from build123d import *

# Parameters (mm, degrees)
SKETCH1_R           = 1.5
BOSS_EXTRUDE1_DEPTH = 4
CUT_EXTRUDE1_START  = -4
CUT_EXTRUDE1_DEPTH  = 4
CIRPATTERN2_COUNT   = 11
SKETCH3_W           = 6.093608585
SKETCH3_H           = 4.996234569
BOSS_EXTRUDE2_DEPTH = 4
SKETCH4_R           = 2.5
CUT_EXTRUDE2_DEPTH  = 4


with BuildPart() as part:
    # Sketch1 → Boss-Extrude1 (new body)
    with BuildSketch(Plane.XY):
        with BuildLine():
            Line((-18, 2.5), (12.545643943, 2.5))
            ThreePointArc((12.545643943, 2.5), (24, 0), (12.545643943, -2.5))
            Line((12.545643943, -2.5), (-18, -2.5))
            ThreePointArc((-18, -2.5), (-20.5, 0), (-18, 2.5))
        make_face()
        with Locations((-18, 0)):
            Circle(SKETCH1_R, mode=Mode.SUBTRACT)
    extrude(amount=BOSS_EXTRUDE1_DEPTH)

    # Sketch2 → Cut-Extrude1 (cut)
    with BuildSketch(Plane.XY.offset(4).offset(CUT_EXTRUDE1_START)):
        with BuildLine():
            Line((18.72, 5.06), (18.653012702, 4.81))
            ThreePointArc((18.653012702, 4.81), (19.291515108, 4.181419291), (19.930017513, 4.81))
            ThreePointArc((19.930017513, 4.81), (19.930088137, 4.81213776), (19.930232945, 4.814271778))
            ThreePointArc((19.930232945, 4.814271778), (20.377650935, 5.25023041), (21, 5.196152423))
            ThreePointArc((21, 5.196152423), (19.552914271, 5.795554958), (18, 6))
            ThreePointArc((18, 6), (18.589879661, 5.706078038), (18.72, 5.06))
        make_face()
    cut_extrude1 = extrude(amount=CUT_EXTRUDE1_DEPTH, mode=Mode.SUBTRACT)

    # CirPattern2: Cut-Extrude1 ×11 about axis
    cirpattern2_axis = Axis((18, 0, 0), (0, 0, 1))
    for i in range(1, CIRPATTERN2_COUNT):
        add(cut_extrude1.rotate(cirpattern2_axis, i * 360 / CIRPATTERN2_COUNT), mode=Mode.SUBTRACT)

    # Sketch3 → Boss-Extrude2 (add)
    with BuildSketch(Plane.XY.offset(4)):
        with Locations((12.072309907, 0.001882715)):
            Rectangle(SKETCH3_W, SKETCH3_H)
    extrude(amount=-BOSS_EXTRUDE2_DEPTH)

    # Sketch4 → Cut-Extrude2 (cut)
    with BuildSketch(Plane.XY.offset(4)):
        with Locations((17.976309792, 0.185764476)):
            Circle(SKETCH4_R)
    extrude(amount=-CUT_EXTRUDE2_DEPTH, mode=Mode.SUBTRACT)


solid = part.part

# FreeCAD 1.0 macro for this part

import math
import FreeCAD as App
import Part
import Sketcher

V = App.Vector
Q = App.Units.Quantity


def add_polygon(sketch, points):
    """Adds a closed chain of lines whose ends are joined by coincident constraints."""
    first, n = sketch.GeometryCount, len(points)
    for a, b in zip(points, points[1:] + points[:1]):
        sketch.addGeometry(Part.LineSegment(App.Vector(*a, 0), App.Vector(*b, 0)), False)
    for i in range(n):
        sketch.addConstraint(Sketcher.Constraint("Coincident", first + i, 2, first + (i + 1) % n, 1))

doc = App.newDocument("Part")
body = doc.addObject("PartDesign::Body", "Body")

# Sketch on XY plane
sketch1 = body.newObject("Sketcher::SketchObject", "Sketch")
sketch1.AttachmentSupport = (doc.getObject("XY_Plane"), [""])
sketch1.MapMode = "FlatFace"
sketch1.addGeometry([
    Part.LineSegment(V(12.545644, 2.5, 0), V(-18, 2.5, 0)),  # 0
    Part.ArcOfCircle(Part.Circle(V(-18, 0, 0), V(0, 0, 1), 2.5), math.radians(90), math.radians(270)),  # 1
    Part.LineSegment(V(-18, -2.5, 0), V(12.545644, -2.5, 0)),  # 2
    Part.ArcOfCircle(Part.Circle(V(18, 0, 0), V(0, 0, 1), 6), math.radians(-155.375682), math.radians(155.375682)),  # 3
    Part.Circle(V(-18, 0, 0), V(0, 0, 1), 1.5),  # 4
], False)
sketch1.addConstraint([
    Sketcher.Constraint("Tangent", 0, 2, 1, 1),
    Sketcher.Constraint("Tangent", 1, 2, 2, 1),
    Sketcher.Constraint("Coincident", 2, 2, 3, 1),
    Sketcher.Constraint("Coincident", 3, 2, 0, 1),
    Sketcher.Constraint("Horizontal", 0),
    Sketcher.Constraint("Horizontal", 2),
    Sketcher.Constraint("Coincident", 4, 3, 1, 3),
    Sketcher.Constraint("Symmetric", 1, 3, 3, 3, -1, 1),
    Sketcher.Constraint("PointOnObject", 1, 3, -1),
    Sketcher.Constraint("Diameter", 4, 3.0),
    Sketcher.Constraint("Radius", 3, 6.0),
    Sketcher.Constraint("Radius", 1, 2.5),
    Sketcher.Constraint("DistanceX", 1, 3, -1, 1, 18.0),
])
pad1 = body.newObject("PartDesign::Pad", "Pad")
pad1.Profile = sketch1
pad1.Length = 4

# Sketch on XY plane
sketch2 = body.newObject("Sketcher::SketchObject", "Sketch001")
sketch2.AttachmentSupport = (doc.getObject("XY_Plane"), [""])
sketch2.MapMode = "FlatFace"
sketch2.addGeometry([
    Part.LineSegment(V(18.72, 5.06, 0), V(18.653013, 4.81, 0)),  # 0
    Part.ArcOfCircle(Part.Circle(V(19.291515, 4.82, 0), V(0, 0, 1), 0.638581), math.radians(-179.102727), math.radians(-0.897273)),  # 1
    Part.ArcOfCircle(Part.Circle(V(19.991603, 4.809035, 0), V(0, 0, 1), 0.061593), math.radians(175.12313), math.radians(179.102742)),  # 2
    Part.ArcOfCircle(Part.Circle(V(20.629798, 4.543887, 0), V(0, 0, 1), 0.75), math.radians(60.422384), math.radians(158.868256)),  # 3
    Part.ArcOfCircle(Part.Circle(V(18, 0, 0), V(0, 0, 1), 6), math.radians(60), math.radians(90)),  # 4
    Part.ArcOfCircle(Part.Circle(V(17.994471, 5.25002, 0), V(0, 0, 1), 0.75), math.radians(-14.676459), math.radians(89.577616)),  # 5
], False)
sketch2.addConstraint([
    Sketcher.Constraint("Coincident", 0, 2, 1, 1),
    Sketcher.Constraint("Tangent", 1, 2, 2, 2),
    Sketcher.Constraint("Coincident", 2, 1, 3, 2),
    Sketcher.Constraint("Coincident", 3, 1, 4, 1),
    Sketcher.Constraint("Coincident", 4, 2, 5, 2),
    Sketcher.Constraint("Coincident", 5, 1, 0, 1),
    Sketcher.Constraint("Equal", 3, 5),
    Sketcher.Constraint("PointOnObject", 4, 3, -1),
    Sketcher.Constraint("Horizontal", 0, 2, 1, 2),
    Sketcher.Constraint("Radius", 4, 6.0),
    Sketcher.Constraint("Angle", 0, Q("-105 deg")),
    Sketcher.Constraint("Radius", 3, 0.75),
    Sketcher.Constraint("DistanceX", -1, 1, 4, 3, 18.0),
    Sketcher.Constraint("DistanceX", -1, 1, 3, 1, 21.0),
    Sketcher.Constraint("DistanceX", -1, 1, 4, 2, 18.0),
    Sketcher.Constraint("DistanceY", -1, 1, 1, 3, 4.82),
    Sketcher.Constraint("DistanceY", -1, 1, 0, 2, 4.81),
    Sketcher.Constraint("DistanceX", -1, 1, 5, 1, 18.72),
    Sketcher.Constraint("DistanceY", -1, 1, 5, 1, 5.06),
    Sketcher.Constraint("Radius", 1, 0.638581),
    Sketcher.Constraint("Radius", 2, 0.061593),
    Sketcher.Constraint("DistanceX", -1, 1, 3, 3, 20.629798),
])
pocket1 = body.newObject("PartDesign::Pocket", "Pocket")
pocket1.Profile = sketch2
pocket1.Length = 4
pocket1.Reversed = True
doc.recompute()

datumline = body.newObject("PartDesign::Line", "DatumLine")
datumline.Placement = App.Placement(V(18, 0, 0), App.Rotation(V(0, 0, 1), V(0, 0, 1)))
polarpattern = body.newObject("PartDesign::PolarPattern", "PolarPattern")
polarpattern.Originals = [pocket1]
polarpattern.Axis = (datumline, [""])
polarpattern.Angle = 360
polarpattern.Occurrences = 11
body.Tip = polarpattern

# Sketch on XY plane
sketch3 = body.newObject("Sketcher::SketchObject", "Sketch002")
sketch3.AttachmentSupport = (doc.getObject("XY_Plane"), [""])
sketch3.MapMode = "FlatFace"
sketch3.AttachmentOffset = App.Placement(V(0, 0, 4), App.Rotation())
add_polygon(sketch3, [(9.025506, 2.5), (9.025506, -2.496235), (15.119114, -2.496235), (15.119114, 2.5)])  # lines 0-3
sketch3.addConstraint([
    Sketcher.Constraint("Vertical", 0),
    Sketcher.Constraint("Horizontal", 1),
    Sketcher.Constraint("Vertical", 2),
    Sketcher.Constraint("Horizontal", 3),
    Sketcher.Constraint("DistanceY", -1, 1, 2, 2, 2.5),
    Sketcher.Constraint("DistanceX", 1, 1, 1, 2, 6.093609),
    Sketcher.Constraint("DistanceY", 0, 2, 0, 1, 4.996235),
    Sketcher.Constraint("DistanceX", -1, 1, 0, 2, 9.025506),
])
pad2 = body.newObject("PartDesign::Pad", "Pad001")
pad2.Profile = sketch3
pad2.Length = 4
pad2.Reversed = True

# Sketch on XY plane
sketch4 = body.newObject("Sketcher::SketchObject", "Sketch003")
sketch4.AttachmentSupport = (doc.getObject("XY_Plane"), [""])
sketch4.MapMode = "FlatFace"
sketch4.AttachmentOffset = App.Placement(V(0, 0, 4), App.Rotation())
sketch4.addGeometry(Part.Circle(V(17.97631, 0.185764, 0), V(0, 0, 1), 2.5), False)
sketch4.addConstraint([
    Sketcher.Constraint("Diameter", 0, 5.0),
    Sketcher.Constraint("DistanceX", -1, 1, 0, 3, 17.97631),
    Sketcher.Constraint("DistanceY", -1, 1, 0, 3, 0.185764),
])
pocket2 = body.newObject("PartDesign::Pocket", "Pocket001")
pocket2.Profile = sketch4
pocket2.Length = 4

doc.recompute()
